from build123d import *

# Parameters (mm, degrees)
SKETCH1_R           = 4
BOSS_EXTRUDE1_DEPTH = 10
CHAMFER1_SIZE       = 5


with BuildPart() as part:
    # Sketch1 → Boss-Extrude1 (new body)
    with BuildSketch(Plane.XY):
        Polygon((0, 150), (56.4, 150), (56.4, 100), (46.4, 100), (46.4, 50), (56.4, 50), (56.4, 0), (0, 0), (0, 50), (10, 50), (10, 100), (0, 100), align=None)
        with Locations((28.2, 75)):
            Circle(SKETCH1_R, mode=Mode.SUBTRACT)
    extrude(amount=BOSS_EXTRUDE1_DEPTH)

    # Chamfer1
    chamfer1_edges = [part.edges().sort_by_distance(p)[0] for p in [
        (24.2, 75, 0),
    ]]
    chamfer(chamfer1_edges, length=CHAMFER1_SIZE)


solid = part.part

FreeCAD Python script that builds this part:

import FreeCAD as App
import Part
import Sketcher

V = App.Vector
Q = App.Units.Quantity


def edges_at(feature, points):
    """Names of the edges that pass closest to the given points."""
    edges = feature.Shape.Edges
    near = lambda p: min(range(len(edges)), key=lambda i: edges[i].distToShape(Part.Vertex(*p))[0])
    return sorted({f"Edge{near(p) + 1}" for p in points})


def add_polygon(sketch, points):
    """Adds a closed chain of lines whose ends are joined by coincident constraints."""
    first, n = sketch.GeometryCount, len(points)
    for a, b in zip(points, points[1:] + points[:1]):
        sketch.addGeometry(Part.LineSegment(App.Vector(*a, 0), App.Vector(*b, 0)), False)
    for i in range(n):
        sketch.addConstraint(Sketcher.Constraint("Coincident", first + i, 2, first + (i + 1) % n, 1))

doc = App.newDocument("Part")
body = doc.addObject("PartDesign::Body", "Body")

sketch1 = doc.addObject("Sketcher::SketchObject", "Sketch")
body.addObject(sketch1)
sketch1.AttachmentSupport = (doc.XY_Plane, [""])
sketch1.MapMode = "FlatFace"
add_polygon(sketch1, [(56.4, 150), (0, 150), (0, 100), (10, 100), (10, 50), (0, 50), (0, 0), (56.4, 0), (56.4, 50), (46.4, 50), (46.4, 100), (56.4, 100)])
sketch1.addGeometry(Part.Circle(V(28.2, 75, 0), V(0, 0, 1), 4), False)
sketch1.addConstraint([
    Sketcher.Constraint("Horizontal", 0),
    Sketcher.Constraint("Vertical", 1),
    Sketcher.Constraint("Horizontal", 2),
    Sketcher.Constraint("Vertical", 3),
    Sketcher.Constraint("Horizontal", 4),
    Sketcher.Constraint("Vertical", 5),
    Sketcher.Constraint("Horizontal", 6),
    Sketcher.Constraint("Vertical", 7),
    Sketcher.Constraint("Horizontal", 8),
    Sketcher.Constraint("Vertical", 9),
    Sketcher.Constraint("Horizontal", 10),
    Sketcher.Constraint("Vertical", 11),
    Sketcher.Constraint("Coincident", 5, 2, -1, 1),
    Sketcher.Constraint("PointOnObject", 0, 2, -2),
    Sketcher.Constraint("Horizontal", 4, 2, 7, 2),
    Sketcher.Constraint("Horizontal", 2, 2, 9, 2),
    Sketcher.Constraint("Vertical", 7, 2, 10, 2),
    Sketcher.Constraint("Equal", 4, 8),
    Sketcher.Constraint("Equal", 1, 3),
    Sketcher.Constraint("Equal", 3, 5),
    Sketcher.Constraint("Diameter", 12, Q("8 mm")),
    Sketcher.Constraint("DistanceX", 2, 1, 2, 2, Q("10 mm")),
    Sketcher.Constraint("DistanceY", 1, 2, 1, 1, Q("50 mm")),
    Sketcher.Constraint("DistanceX", 0, 2, 0, 1, Q("56.4 mm")),
    Sketcher.Constraint("DistanceY", -1, 1, 12, 3, Q("75 mm")),
    Sketcher.Constraint("DistanceX", -1, 1, 12, 3, Q("28.2 mm")),
])
pad1 = doc.addObject("PartDesign::Pad", "Pad")
body.addObject(pad1)
pad1.Profile = sketch1
pad1.Length = 10
doc.recompute()

chamfer = doc.addObject("PartDesign::Chamfer", "Chamfer")
body.addObject(chamfer)
chamfer.Base = (pad1, edges_at(pad1, [(24.2, 75, 0)]))
chamfer.Size = 5

doc.recompute()
